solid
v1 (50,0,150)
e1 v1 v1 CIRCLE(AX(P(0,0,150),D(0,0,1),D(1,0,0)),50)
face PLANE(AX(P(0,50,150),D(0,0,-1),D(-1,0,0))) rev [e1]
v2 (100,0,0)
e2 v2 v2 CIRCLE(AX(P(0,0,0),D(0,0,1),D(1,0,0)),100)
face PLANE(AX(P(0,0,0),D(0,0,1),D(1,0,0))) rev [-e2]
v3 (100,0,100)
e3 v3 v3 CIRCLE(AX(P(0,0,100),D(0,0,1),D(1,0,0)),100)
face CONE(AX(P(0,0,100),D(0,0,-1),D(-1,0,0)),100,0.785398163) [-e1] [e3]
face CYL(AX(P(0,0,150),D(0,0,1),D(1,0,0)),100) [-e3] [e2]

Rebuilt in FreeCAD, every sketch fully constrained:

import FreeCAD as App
import Part
import Sketcher
Q = App.Units.Quantity

doc = App.newDocument("Part")
body = doc.addObject("PartDesign::Body", "Body")

sketch1 = body.newObject("Sketcher::SketchObject", "Sketch")
sketch1.AttachmentSupport = (doc.getObject("YZ_Plane"), [""])
sketch1.MapMode = "FlatFace"
sketch1.addGeometry([
    Part.LineSegment(App.Vector(0, 0, 0), App.Vector(100, 0, 0)),
    Part.LineSegment(App.Vector(100, 0, 0), App.Vector(100, 100, 0)),
    Part.LineSegment(App.Vector(100, 100, 0), App.Vector(50, 150, 0)),
    Part.LineSegment(App.Vector(50, 150, 0), App.Vector(0, 150, 0)),
    Part.LineSegment(App.Vector(0, 150, 0), App.Vector(0, 0, 0)),
], False)
sketch1.addConstraint([
    Sketcher.Constraint("Coincident", 0, 2, 1, 1),
    Sketcher.Constraint("Coincident", 1, 2, 2, 1),
    Sketcher.Constraint("Coincident", 2, 2, 3, 1),
    Sketcher.Constraint("Coincident", 3, 2, 4, 1),
    Sketcher.Constraint("Coincident", 4, 2, 0, 1),
    Sketcher.Constraint("Horizontal", 0),
    Sketcher.Constraint("Vertical", 1),
    Sketcher.Constraint("Horizontal", 3),
    Sketcher.Constraint("Vertical", 4),
    Sketcher.Constraint("Coincident", 4, 2, -1, 1),
    Sketcher.Constraint("Equal", 0, 1),
    Sketcher.Constraint("DistanceX", 0, 1, 0, 2, Q("100 mm")),
    Sketcher.Constraint("DistanceX", 3, 2, 3, 1, Q("50 mm")),
    Sketcher.Constraint("DistanceY", 4, 2, 4, 1, Q("150 mm")),
])
revolution = body.newObject("PartDesign::Revolution", "Revolution")
revolution.Profile = sketch1
revolution.ReferenceAxis = (sketch1, ["V_Axis"])
revolution.Angle = 360

doc.recompute()
